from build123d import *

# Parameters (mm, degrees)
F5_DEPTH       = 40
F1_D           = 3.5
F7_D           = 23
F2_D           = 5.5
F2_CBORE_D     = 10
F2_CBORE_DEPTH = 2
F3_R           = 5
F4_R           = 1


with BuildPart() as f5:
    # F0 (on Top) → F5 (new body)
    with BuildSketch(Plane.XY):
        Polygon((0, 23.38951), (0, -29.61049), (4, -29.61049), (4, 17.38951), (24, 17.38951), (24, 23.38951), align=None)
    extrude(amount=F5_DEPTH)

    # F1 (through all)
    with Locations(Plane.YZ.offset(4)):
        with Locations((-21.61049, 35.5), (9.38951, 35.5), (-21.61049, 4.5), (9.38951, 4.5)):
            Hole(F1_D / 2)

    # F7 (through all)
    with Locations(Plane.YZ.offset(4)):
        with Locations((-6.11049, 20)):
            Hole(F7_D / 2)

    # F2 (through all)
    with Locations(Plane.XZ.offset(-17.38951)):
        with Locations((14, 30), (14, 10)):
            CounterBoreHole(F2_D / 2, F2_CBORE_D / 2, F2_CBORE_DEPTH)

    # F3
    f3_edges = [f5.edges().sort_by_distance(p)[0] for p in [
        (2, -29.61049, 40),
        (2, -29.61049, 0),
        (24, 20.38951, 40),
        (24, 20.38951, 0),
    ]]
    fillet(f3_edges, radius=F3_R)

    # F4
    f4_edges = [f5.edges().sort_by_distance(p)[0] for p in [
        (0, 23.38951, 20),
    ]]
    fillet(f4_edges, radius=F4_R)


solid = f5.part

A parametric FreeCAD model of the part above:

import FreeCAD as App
import Part
import Sketcher

V = App.Vector
Q = App.Units.Quantity


def edges_at(feature, points):
    """Names of the edges that pass closest to the given points."""
    edges = feature.Shape.Edges
    near = lambda p: min(range(len(edges)), key=lambda i: edges[i].distToShape(Part.Vertex(*p))[0])
    return sorted({f"Edge{near(p) + 1}" for p in points})


def add_polygon(sketch, points):
    """Adds a closed chain of lines whose ends are joined by coincident constraints."""
    first, n = sketch.GeometryCount, len(points)
    for a, b in zip(points, points[1:] + points[:1]):
        sketch.addGeometry(Part.LineSegment(App.Vector(*a, 0), App.Vector(*b, 0)), False)
    for i in range(n):
        sketch.addConstraint(Sketcher.Constraint("Coincident", first + i, 2, first + (i + 1) % n, 1))

doc = App.newDocument("Part")
params = doc.addObject("Spreadsheet::Sheet", "Params")
for row, (alias, value) in enumerate([
    ("sketch1_width", "4 mm"),
    ("sketch1_width2", "20 mm"),
    ("sketch1_height", "53 mm"),
    ("sketch1_height2", "47 mm"),
    ("pad1_length", "40 mm"),
    ("sketch2_diameter", "3.5 mm"),
    ("hole_diameter", "3.5 mm"),
    ("sketch3_diameter", "23 mm"),
    ("hole2_diameter", "23 mm"),
    ("sketch4_diameter", "5.5 mm"),
    ("hole3_diameter", "5.5 mm"),
    ("hole3_cbore_diameter", "10 mm"),
    ("hole3_cbore_depth", "2 mm"),
    ("fillet_radius", "5 mm"),
    ("fillet2_radius", "1 mm"),
], start=1):
    params.set(f"A{row}", alias)
    params.set(f"B{row}", "=" + value)
    params.setAlias(f"B{row}", alias)

body = doc.addObject("PartDesign::Body", "Body")

# Sketch on XY plane
sketch1 = body.newObject("Sketcher::SketchObject", "Sketch")
sketch1.AttachmentSupport = (doc.getObject("XY_Plane"), [""])
sketch1.MapMode = "FlatFace"
add_polygon(sketch1, [(0, 23.38951), (0, -29.61049), (4, -29.61049), (4, 17.38951), (24, 17.38951), (24, 23.38951)])  # lines 0-5
sketch1.addConstraint([
    Sketcher.Constraint("Vertical", 0),
    Sketcher.Constraint("Horizontal", 1),
    Sketcher.Constraint("Vertical", 2),
    Sketcher.Constraint("Horizontal", 3),
    Sketcher.Constraint("Vertical", 4),
    Sketcher.Constraint("Horizontal", 5),
    Sketcher.Constraint("PointOnObject", 0, 2, -2),
    Sketcher.Constraint("DistanceX", 1, 1, 1, 2, Q("4 mm")),
    Sketcher.Constraint("DistanceX", 3, 1, 3, 2, Q("20 mm")),
    Sketcher.Constraint("DistanceY", 0, 2, 0, 1, Q("53 mm")),
    Sketcher.Constraint("DistanceY", 2, 1, 2, 2, Q("47 mm")),
    Sketcher.Constraint("DistanceY", 0, 2, -1, 1, Q("29.61049 mm")),
])
sketch1.setExpression("Constraints[13]", "Params.sketch1_width")
sketch1.setExpression("Constraints[14]", "Params.sketch1_width2")
sketch1.setExpression("Constraints[15]", "Params.sketch1_height")
sketch1.setExpression("Constraints[16]", "Params.sketch1_height2")
pad1 = body.newObject("PartDesign::Pad", "Pad")
pad1.Profile = sketch1
pad1.setExpression("Length", "Params.pad1_length")

# Sketch on YZ plane
sketch2 = body.newObject("Sketcher::SketchObject", "Sketch001")
sketch2.AttachmentSupport = (doc.getObject("YZ_Plane"), [""])
sketch2.MapMode = "FlatFace"
sketch2.AttachmentOffset = App.Placement(V(0, 0, 4), App.Rotation())
sketch2.addGeometry([
    Part.Circle(V(-21.61049, 35.5, 0), V(0, 0, 1), 1.75),
    Part.Circle(V(9.38951, 35.5, 0), V(0, 0, 1), 1.75),
    Part.Circle(V(-21.61049, 4.5, 0), V(0, 0, 1), 1.75),
    Part.Circle(V(9.38951, 4.5, 0), V(0, 0, 1), 1.75),
], False)
sketch2.addConstraint([
    Sketcher.Constraint("Equal", 0, 1),
    Sketcher.Constraint("Equal", 1, 2),
    Sketcher.Constraint("Equal", 2, 3),
    Sketcher.Constraint("Horizontal", 0, 3, 1, 3),
    Sketcher.Constraint("Horizontal", 2, 3, 3, 3),
    Sketcher.Constraint("Vertical", 0, 3, 2, 3),
    Sketcher.Constraint("Vertical", 1, 3, 3, 3),
    Sketcher.Constraint("Diameter", 0, Q("3.5 mm")),
    Sketcher.Constraint("DistanceX", 0, 3, 1, 3, Q("31 mm")),
    Sketcher.Constraint("DistanceY", 2, 3, 0, 3, Q("31 mm")),
    Sketcher.Constraint("DistanceY", -1, 1, 0, 3, Q("35.5 mm")),
    Sketcher.Constraint("DistanceX", 0, 3, -1, 1, Q("21.61049 mm")),
])
sketch2.setExpression("Constraints[7]", "Params.sketch2_diameter")
doc.recompute()
hole = body.newObject("PartDesign::Hole", "Hole")
hole.Profile = sketch2
hole.ThreadType = "None"
hole.setExpression("Diameter", "Params.hole_diameter")
hole.DepthType = "ThroughAll"

# Sketch on YZ plane
sketch3 = body.newObject("Sketcher::SketchObject", "Sketch002")
sketch3.AttachmentSupport = (doc.getObject("YZ_Plane"), [""])
sketch3.MapMode = "FlatFace"
sketch3.AttachmentOffset = App.Placement(V(0, 0, 4), App.Rotation())
sketch3.addGeometry(Part.Circle(V(-6.11049, 20, 0), V(0, 0, 1), 11.5), False)
sketch3.addConstraint([
    Sketcher.Constraint("Diameter", 0, Q("23 mm")),
    Sketcher.Constraint("DistanceY", -1, 1, 0, 3, Q("20 mm")),
    Sketcher.Constraint("DistanceX", 0, 3, -1, 1, Q("6.11049 mm")),
])
sketch3.setExpression("Constraints[0]", "Params.sketch3_diameter")
doc.recompute()
hole2 = body.newObject("PartDesign::Hole", "Hole001")
hole2.Profile = sketch3
hole2.ThreadType = "None"
hole2.setExpression("Diameter", "Params.hole2_diameter")
hole2.DepthType = "ThroughAll"

# Sketch on XZ plane
sketch4 = body.newObject("Sketcher::SketchObject", "Sketch003")
sketch4.AttachmentSupport = (doc.getObject("XZ_Plane"), [""])
sketch4.MapMode = "FlatFace"
sketch4.AttachmentOffset = App.Placement(V(0, 0, -17.38951), App.Rotation())
sketch4.addGeometry([
    Part.Circle(V(14, 30, 0), V(0, 0, 1), 2.75),
    Part.Circle(V(14, 10, 0), V(0, 0, 1), 2.75),
], False)
sketch4.addConstraint([
    Sketcher.Constraint("Equal", 0, 1),
    Sketcher.Constraint("Vertical", 0, 3, 1, 3),
    Sketcher.Constraint("Diameter", 0, Q("5.5 mm")),
    Sketcher.Constraint("DistanceX", -1, 1, 0, 3, Q("14 mm")),
    Sketcher.Constraint("DistanceY", -1, 1, 0, 3, Q("30 mm")),
    Sketcher.Constraint("DistanceY", -1, 1, 1, 3, Q("10 mm")),
])
sketch4.setExpression("Constraints[2]", "Params.sketch4_diameter")
doc.recompute()
hole3 = body.newObject("PartDesign::Hole", "Hole002")
hole3.Profile = sketch4
hole3.ThreadType = "None"
hole3.setExpression("Diameter", "Params.hole3_diameter")
hole3.DepthType = "ThroughAll"
hole3.HoleCutType = "Counterbore"
hole3.setExpression("HoleCutDiameter", "Params.hole3_cbore_diameter")
hole3.setExpression("HoleCutDepth", "Params.hole3_cbore_depth")
doc.recompute()

fillet = body.newObject("PartDesign::Fillet", "Fillet")
fillet.Base = (hole3, edges_at(hole3, [
    (2, -29.61, 40),
    (2, -29.61, 0),
    (24, 20.39, 40),
    (24, 20.39, 0),
]))
fillet.setExpression("Radius", "Params.fillet_radius")
doc.recompute()

fillet2 = body.newObject("PartDesign::Fillet", "Fillet001")
fillet2.Base = (fillet, edges_at(fillet, [(0, 23.39, 20)]))
fillet2.setExpression("Radius", "Params.fillet2_radius")

doc.recompute()
